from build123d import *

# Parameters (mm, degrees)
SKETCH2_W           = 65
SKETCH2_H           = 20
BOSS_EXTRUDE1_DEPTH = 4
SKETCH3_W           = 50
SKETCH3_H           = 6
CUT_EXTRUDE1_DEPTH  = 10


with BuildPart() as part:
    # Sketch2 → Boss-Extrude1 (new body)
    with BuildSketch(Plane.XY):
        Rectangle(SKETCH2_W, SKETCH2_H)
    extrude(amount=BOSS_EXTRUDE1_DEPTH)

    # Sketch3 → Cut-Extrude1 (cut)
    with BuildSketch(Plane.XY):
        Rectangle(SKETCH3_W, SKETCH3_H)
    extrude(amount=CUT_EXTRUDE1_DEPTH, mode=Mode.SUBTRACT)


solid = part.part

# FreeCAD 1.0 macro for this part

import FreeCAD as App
import Part
import Sketcher

V = App.Vector
Q = App.Units.Quantity

doc = App.newDocument("Part")
body = doc.addObject("PartDesign::Body", "Body")

# Sketch on XY plane
sketch1 = body.newObject("Sketcher::SketchObject", "Sketch")
sketch1.AttachmentSupport = (doc.getObject("XY_Plane"), [""])
sketch1.MapMode = "FlatFace"
sketch1.addGeometry(Part.LineSegment(V(-32.5, 10, 0), V(-32.5, -10, 0)), False)
sketch1.addGeometry(Part.LineSegment(V(-32.5, -10, 0), V(32.5, -10, 0)), False)
sketch1.addGeometry(Part.LineSegment(V(32.5, -10, 0), V(32.5, 10, 0)), False)
sketch1.addGeometry(Part.LineSegment(V(32.5, 10, 0), V(-32.5, 10, 0)), False)
sketch1.addConstraint(Sketcher.Constraint("Coincident", 0, 2, 1, 1))
sketch1.addConstraint(Sketcher.Constraint("Coincident", 1, 2, 2, 1))
sketch1.addConstraint(Sketcher.Constraint("Coincident", 2, 2, 3, 1))
sketch1.addConstraint(Sketcher.Constraint("Coincident", 3, 2, 0, 1))
sketch1.addConstraint(Sketcher.Constraint("Vertical", 0))
sketch1.addConstraint(Sketcher.Constraint("Horizontal", 1))
sketch1.addConstraint(Sketcher.Constraint("Vertical", 2))
sketch1.addConstraint(Sketcher.Constraint("Horizontal", 3))
sketch1.addConstraint(Sketcher.Constraint("Symmetric", 0, 2, 2, 2, -1, 1))
sketch1.addConstraint(Sketcher.Constraint("DistanceX", 1, 1, 1, 2, Q("65 mm")))
sketch1.addConstraint(Sketcher.Constraint("DistanceY", 0, 2, 0, 1, Q("20 mm")))
pad1 = body.newObject("PartDesign::Pad", "Pad")
pad1.Profile = sketch1
pad1.Length = 4

# Sketch on XY plane
sketch2 = body.newObject("Sketcher::SketchObject", "Sketch001")
sketch2.AttachmentSupport = (doc.getObject("XY_Plane"), [""])
sketch2.MapMode = "FlatFace"
sketch2.addGeometry(Part.LineSegment(V(-25, 3, 0), V(-25, -3, 0)), False)
sketch2.addGeometry(Part.LineSegment(V(-25, -3, 0), V(25, -3, 0)), False)
sketch2.addGeometry(Part.LineSegment(V(25, -3, 0), V(25, 3, 0)), False)
sketch2.addGeometry(Part.LineSegment(V(25, 3, 0), V(-25, 3, 0)), False)
sketch2.addConstraint(Sketcher.Constraint("Coincident", 0, 2, 1, 1))
sketch2.addConstraint(Sketcher.Constraint("Coincident", 1, 2, 2, 1))
sketch2.addConstraint(Sketcher.Constraint("Coincident", 2, 2, 3, 1))
sketch2.addConstraint(Sketcher.Constraint("Coincident", 3, 2, 0, 1))
sketch2.addConstraint(Sketcher.Constraint("Vertical", 0))
sketch2.addConstraint(Sketcher.Constraint("Horizontal", 1))
sketch2.addConstraint(Sketcher.Constraint("Vertical", 2))
sketch2.addConstraint(Sketcher.Constraint("Horizontal", 3))
sketch2.addConstraint(Sketcher.Constraint("Symmetric", 0, 2, 2, 2, -1, 1))
sketch2.addConstraint(Sketcher.Constraint("DistanceX", 1, 1, 1, 2, Q("50 mm")))
sketch2.addConstraint(Sketcher.Constraint("DistanceY", 0, 2, 0, 1, Q("6 mm")))
pocket1 = body.newObject("PartDesign::Pocket", "Pocket")
pocket1.Profile = sketch2
pocket1.Length = 10
pocket1.Reversed = True

doc.recompute()
